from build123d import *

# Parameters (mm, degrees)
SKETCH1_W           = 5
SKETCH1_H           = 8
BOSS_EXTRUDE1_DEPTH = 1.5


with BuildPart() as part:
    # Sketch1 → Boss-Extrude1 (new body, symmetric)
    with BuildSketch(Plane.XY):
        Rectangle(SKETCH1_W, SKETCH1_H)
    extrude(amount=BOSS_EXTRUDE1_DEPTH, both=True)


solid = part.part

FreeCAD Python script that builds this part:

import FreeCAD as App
import Part
import Sketcher

V = App.Vector

doc = App.newDocument("Part")
params = doc.addObject("Spreadsheet::Sheet", "Params")
for row, (alias, value) in enumerate([
    ("sketch1_width", "5 mm"),
    ("sketch1_height", "8 mm"),
    ("pad1_length", "3 mm"),
], start=1):
    params.set(f"A{row}", alias)
    params.set(f"B{row}", "=" + value)
    params.setAlias(f"B{row}", alias)

body = doc.addObject("PartDesign::Body", "Body")

sketch1 = body.newObject("Sketcher::SketchObject", "Sketch")
sketch1.AttachmentSupport = (doc.getObject("XY_Plane"), [""])
sketch1.MapMode = "FlatFace"
sketch1.addGeometry([
    Part.LineSegment(V(-2.5, 4, 0), V(-2.5, -4, 0)),
    Part.LineSegment(V(-2.5, -4, 0), V(2.5, -4, 0)),
    Part.LineSegment(V(2.5, -4, 0), V(2.5, 4, 0)),
    Part.LineSegment(V(2.5, 4, 0), V(-2.5, 4, 0)),
], False)
sketch1.addConstraint([
    Sketcher.Constraint("Coincident", 0, 2, 1, 1),
    Sketcher.Constraint("Coincident", 1, 2, 2, 1),
    Sketcher.Constraint("Coincident", 2, 2, 3, 1),
    Sketcher.Constraint("Coincident", 3, 2, 0, 1),
    Sketcher.Constraint("Vertical", 0),
    Sketcher.Constraint("Horizontal", 1),
    Sketcher.Constraint("Vertical", 2),
    Sketcher.Constraint("Horizontal", 3),
    Sketcher.Constraint("Symmetric", 0, 2, 2, 2, -1, 1),
    Sketcher.Constraint("DistanceX", 1, 1, 1, 2, 5.0),
    Sketcher.Constraint("DistanceY", 0, 2, 0, 1, 8.0),
])
sketch1.setExpression("Constraints[9]", "Params.sketch1_width")
sketch1.setExpression("Constraints[10]", "Params.sketch1_height")
pad1 = body.newObject("PartDesign::Pad", "Pad")
pad1.Profile = sketch1
pad1.setExpression("Length", "Params.pad1_length")
pad1.Midplane = True

doc.recompute()
